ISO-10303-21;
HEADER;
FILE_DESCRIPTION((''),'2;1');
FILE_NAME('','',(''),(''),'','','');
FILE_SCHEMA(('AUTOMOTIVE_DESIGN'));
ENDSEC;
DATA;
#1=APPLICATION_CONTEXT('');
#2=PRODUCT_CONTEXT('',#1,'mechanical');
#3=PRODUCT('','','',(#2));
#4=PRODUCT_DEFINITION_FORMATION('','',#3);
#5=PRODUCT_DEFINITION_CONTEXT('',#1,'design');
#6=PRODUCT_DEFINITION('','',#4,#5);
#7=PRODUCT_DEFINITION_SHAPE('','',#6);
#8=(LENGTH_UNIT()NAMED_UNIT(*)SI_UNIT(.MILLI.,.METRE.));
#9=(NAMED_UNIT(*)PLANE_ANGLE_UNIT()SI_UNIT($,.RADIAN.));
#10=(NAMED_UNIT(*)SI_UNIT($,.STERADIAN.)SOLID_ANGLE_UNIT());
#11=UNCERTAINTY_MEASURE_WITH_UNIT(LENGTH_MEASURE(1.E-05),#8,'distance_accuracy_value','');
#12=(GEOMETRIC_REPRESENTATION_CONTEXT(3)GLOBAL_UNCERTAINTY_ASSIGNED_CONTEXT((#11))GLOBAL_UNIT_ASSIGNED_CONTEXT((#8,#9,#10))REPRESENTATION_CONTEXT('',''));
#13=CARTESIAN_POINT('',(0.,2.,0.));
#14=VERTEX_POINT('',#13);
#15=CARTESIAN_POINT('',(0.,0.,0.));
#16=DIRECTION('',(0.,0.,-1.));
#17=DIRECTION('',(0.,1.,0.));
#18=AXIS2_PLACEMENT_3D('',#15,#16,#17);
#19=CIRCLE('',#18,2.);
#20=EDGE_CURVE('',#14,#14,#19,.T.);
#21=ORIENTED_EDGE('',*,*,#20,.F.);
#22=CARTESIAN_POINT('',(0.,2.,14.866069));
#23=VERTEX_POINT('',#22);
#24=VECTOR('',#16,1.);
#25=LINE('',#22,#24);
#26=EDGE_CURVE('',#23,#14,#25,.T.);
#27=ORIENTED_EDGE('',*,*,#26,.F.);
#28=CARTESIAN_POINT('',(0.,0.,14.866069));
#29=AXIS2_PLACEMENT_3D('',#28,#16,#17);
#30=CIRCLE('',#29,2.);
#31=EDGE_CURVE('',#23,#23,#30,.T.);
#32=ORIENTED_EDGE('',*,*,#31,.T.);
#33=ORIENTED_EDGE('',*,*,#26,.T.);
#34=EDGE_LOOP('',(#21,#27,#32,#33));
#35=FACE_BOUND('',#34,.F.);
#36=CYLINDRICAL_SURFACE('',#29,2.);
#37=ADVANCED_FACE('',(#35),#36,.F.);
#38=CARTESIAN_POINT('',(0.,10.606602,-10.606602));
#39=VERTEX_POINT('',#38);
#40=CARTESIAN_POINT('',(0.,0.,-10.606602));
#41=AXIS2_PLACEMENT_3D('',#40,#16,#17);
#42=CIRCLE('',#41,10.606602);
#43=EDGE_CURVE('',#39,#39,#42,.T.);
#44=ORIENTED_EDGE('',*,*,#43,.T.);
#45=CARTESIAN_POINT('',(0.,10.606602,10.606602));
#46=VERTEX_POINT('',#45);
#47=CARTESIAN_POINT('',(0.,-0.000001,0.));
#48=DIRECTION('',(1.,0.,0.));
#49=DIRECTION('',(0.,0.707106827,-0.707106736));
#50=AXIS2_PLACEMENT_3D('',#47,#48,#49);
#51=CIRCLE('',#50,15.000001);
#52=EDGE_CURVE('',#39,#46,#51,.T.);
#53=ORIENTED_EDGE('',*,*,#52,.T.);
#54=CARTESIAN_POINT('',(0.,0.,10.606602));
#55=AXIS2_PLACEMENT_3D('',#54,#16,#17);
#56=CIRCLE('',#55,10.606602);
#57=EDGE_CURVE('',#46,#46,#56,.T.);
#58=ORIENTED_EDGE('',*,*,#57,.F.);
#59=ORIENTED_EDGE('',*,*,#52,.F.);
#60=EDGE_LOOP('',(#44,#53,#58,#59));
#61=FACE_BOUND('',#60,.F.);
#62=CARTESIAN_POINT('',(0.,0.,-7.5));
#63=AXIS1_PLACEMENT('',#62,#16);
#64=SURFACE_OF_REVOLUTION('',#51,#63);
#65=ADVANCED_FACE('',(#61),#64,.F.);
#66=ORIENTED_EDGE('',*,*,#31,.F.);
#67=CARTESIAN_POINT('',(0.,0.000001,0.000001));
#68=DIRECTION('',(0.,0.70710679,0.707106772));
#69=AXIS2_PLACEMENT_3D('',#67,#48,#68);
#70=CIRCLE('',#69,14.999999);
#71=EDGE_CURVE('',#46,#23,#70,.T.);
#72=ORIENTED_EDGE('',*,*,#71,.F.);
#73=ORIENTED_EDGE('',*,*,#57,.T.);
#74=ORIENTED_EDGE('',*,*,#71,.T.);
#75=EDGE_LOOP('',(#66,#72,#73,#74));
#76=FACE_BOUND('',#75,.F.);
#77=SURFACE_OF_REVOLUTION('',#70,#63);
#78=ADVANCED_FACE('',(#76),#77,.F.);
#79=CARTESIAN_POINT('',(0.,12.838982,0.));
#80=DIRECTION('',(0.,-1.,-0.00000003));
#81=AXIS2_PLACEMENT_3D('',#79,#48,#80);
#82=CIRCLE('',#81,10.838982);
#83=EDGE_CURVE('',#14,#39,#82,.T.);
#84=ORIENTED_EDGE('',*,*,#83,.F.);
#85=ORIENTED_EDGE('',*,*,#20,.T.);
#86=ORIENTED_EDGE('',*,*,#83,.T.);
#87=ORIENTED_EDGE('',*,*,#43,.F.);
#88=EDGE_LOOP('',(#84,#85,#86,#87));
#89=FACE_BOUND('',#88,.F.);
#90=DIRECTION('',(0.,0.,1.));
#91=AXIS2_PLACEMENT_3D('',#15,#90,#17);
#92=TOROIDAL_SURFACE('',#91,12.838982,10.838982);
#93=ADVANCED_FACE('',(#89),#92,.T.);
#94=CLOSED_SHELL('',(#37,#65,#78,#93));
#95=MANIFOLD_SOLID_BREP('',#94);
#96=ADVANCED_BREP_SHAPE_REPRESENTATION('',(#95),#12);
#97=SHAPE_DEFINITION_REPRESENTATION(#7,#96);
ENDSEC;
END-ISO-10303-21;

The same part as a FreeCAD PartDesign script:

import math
import FreeCAD as App
import Part
import Sketcher

V = App.Vector
Q = App.Units.Quantity

doc = App.newDocument("Part")
params = doc.addObject("Spreadsheet::Sheet", "Params")
for row, (alias, value) in enumerate([
    ("sketch1_radius", "15.000001 mm"),
    ("revolution_angle", "360 deg"),
], start=1):
    params.set(f"A{row}", alias)
    params.set(f"B{row}", "=" + value)
    params.setAlias(f"B{row}", alias)

body = doc.addObject("PartDesign::Body", "Body")

sketch1 = doc.addObject("Sketcher::SketchObject", "Sketch")
body.addObject(sketch1)
sketch1.AttachmentSupport = (doc.YZ_Plane, [""])
sketch1.MapMode = "FlatFace"
sketch1.addGeometry(Part.ArcOfCircle(Part.Circle(V(-0.000001, 0, 0), V(0, 0, 1), 15.000001), math.radians(-44.999996), math.radians(44.999996)), False)
sketch1.addGeometry(Part.ArcOfCircle(Part.Circle(V(0.000001, 0.000001, 0), V(0, 0, 1), 14.999999), math.radians(44.999999), math.radians(82.337747)), False)
sketch1.addGeometry(Part.LineSegment(V(2, 14.866069, 0), V(2, 0, 0)), False)
sketch1.addGeometry(Part.ArcOfCircle(Part.Circle(V(12.838982, 0, 0), V(0, 0, 1), 10.838982), math.radians(-179.999998), math.radians(-101.885613)), False)
sketch1.addConstraint(Sketcher.Constraint("Tangent", 0, 2, 1, 1))
sketch1.addConstraint(Sketcher.Constraint("Coincident", 1, 2, 2, 1))
sketch1.addConstraint(Sketcher.Constraint("Tangent", 2, 2, 3, 1))
sketch1.addConstraint(Sketcher.Constraint("Coincident", 3, 2, 0, 1))
sketch1.addConstraint(Sketcher.Constraint("Vertical", 2))
sketch1.addConstraint(Sketcher.Constraint("Coincident", 0, 3, -1, 1))
sketch1.addConstraint(Sketcher.Constraint("PointOnObject", 3, 3, -1))
sketch1.addConstraint(Sketcher.Constraint("Horizontal", 1, 3, 3, 3))
sketch1.addConstraint(Sketcher.Constraint("Vertical", 0, 2, 3, 2))
sketch1.addConstraint(Sketcher.Constraint("Radius", 0, Q("15.000001 mm")))
sketch1.addConstraint(Sketcher.Constraint("DistanceX", -1, 1, 1, 2, Q("2 mm")))
sketch1.addConstraint(Sketcher.Constraint("Radius", 3, Q("10.838982 mm")))
sketch1.setExpression("Constraints[9]", "Params.sketch1_radius")
revolution = doc.addObject("PartDesign::Revolution", "Revolution")
body.addObject(revolution)
revolution.Profile = sketch1
revolution.ReferenceAxis = (sketch1, ["V_Axis"])
revolution.setExpression("Angle", "Params.revolution_angle")

doc.recompute()
